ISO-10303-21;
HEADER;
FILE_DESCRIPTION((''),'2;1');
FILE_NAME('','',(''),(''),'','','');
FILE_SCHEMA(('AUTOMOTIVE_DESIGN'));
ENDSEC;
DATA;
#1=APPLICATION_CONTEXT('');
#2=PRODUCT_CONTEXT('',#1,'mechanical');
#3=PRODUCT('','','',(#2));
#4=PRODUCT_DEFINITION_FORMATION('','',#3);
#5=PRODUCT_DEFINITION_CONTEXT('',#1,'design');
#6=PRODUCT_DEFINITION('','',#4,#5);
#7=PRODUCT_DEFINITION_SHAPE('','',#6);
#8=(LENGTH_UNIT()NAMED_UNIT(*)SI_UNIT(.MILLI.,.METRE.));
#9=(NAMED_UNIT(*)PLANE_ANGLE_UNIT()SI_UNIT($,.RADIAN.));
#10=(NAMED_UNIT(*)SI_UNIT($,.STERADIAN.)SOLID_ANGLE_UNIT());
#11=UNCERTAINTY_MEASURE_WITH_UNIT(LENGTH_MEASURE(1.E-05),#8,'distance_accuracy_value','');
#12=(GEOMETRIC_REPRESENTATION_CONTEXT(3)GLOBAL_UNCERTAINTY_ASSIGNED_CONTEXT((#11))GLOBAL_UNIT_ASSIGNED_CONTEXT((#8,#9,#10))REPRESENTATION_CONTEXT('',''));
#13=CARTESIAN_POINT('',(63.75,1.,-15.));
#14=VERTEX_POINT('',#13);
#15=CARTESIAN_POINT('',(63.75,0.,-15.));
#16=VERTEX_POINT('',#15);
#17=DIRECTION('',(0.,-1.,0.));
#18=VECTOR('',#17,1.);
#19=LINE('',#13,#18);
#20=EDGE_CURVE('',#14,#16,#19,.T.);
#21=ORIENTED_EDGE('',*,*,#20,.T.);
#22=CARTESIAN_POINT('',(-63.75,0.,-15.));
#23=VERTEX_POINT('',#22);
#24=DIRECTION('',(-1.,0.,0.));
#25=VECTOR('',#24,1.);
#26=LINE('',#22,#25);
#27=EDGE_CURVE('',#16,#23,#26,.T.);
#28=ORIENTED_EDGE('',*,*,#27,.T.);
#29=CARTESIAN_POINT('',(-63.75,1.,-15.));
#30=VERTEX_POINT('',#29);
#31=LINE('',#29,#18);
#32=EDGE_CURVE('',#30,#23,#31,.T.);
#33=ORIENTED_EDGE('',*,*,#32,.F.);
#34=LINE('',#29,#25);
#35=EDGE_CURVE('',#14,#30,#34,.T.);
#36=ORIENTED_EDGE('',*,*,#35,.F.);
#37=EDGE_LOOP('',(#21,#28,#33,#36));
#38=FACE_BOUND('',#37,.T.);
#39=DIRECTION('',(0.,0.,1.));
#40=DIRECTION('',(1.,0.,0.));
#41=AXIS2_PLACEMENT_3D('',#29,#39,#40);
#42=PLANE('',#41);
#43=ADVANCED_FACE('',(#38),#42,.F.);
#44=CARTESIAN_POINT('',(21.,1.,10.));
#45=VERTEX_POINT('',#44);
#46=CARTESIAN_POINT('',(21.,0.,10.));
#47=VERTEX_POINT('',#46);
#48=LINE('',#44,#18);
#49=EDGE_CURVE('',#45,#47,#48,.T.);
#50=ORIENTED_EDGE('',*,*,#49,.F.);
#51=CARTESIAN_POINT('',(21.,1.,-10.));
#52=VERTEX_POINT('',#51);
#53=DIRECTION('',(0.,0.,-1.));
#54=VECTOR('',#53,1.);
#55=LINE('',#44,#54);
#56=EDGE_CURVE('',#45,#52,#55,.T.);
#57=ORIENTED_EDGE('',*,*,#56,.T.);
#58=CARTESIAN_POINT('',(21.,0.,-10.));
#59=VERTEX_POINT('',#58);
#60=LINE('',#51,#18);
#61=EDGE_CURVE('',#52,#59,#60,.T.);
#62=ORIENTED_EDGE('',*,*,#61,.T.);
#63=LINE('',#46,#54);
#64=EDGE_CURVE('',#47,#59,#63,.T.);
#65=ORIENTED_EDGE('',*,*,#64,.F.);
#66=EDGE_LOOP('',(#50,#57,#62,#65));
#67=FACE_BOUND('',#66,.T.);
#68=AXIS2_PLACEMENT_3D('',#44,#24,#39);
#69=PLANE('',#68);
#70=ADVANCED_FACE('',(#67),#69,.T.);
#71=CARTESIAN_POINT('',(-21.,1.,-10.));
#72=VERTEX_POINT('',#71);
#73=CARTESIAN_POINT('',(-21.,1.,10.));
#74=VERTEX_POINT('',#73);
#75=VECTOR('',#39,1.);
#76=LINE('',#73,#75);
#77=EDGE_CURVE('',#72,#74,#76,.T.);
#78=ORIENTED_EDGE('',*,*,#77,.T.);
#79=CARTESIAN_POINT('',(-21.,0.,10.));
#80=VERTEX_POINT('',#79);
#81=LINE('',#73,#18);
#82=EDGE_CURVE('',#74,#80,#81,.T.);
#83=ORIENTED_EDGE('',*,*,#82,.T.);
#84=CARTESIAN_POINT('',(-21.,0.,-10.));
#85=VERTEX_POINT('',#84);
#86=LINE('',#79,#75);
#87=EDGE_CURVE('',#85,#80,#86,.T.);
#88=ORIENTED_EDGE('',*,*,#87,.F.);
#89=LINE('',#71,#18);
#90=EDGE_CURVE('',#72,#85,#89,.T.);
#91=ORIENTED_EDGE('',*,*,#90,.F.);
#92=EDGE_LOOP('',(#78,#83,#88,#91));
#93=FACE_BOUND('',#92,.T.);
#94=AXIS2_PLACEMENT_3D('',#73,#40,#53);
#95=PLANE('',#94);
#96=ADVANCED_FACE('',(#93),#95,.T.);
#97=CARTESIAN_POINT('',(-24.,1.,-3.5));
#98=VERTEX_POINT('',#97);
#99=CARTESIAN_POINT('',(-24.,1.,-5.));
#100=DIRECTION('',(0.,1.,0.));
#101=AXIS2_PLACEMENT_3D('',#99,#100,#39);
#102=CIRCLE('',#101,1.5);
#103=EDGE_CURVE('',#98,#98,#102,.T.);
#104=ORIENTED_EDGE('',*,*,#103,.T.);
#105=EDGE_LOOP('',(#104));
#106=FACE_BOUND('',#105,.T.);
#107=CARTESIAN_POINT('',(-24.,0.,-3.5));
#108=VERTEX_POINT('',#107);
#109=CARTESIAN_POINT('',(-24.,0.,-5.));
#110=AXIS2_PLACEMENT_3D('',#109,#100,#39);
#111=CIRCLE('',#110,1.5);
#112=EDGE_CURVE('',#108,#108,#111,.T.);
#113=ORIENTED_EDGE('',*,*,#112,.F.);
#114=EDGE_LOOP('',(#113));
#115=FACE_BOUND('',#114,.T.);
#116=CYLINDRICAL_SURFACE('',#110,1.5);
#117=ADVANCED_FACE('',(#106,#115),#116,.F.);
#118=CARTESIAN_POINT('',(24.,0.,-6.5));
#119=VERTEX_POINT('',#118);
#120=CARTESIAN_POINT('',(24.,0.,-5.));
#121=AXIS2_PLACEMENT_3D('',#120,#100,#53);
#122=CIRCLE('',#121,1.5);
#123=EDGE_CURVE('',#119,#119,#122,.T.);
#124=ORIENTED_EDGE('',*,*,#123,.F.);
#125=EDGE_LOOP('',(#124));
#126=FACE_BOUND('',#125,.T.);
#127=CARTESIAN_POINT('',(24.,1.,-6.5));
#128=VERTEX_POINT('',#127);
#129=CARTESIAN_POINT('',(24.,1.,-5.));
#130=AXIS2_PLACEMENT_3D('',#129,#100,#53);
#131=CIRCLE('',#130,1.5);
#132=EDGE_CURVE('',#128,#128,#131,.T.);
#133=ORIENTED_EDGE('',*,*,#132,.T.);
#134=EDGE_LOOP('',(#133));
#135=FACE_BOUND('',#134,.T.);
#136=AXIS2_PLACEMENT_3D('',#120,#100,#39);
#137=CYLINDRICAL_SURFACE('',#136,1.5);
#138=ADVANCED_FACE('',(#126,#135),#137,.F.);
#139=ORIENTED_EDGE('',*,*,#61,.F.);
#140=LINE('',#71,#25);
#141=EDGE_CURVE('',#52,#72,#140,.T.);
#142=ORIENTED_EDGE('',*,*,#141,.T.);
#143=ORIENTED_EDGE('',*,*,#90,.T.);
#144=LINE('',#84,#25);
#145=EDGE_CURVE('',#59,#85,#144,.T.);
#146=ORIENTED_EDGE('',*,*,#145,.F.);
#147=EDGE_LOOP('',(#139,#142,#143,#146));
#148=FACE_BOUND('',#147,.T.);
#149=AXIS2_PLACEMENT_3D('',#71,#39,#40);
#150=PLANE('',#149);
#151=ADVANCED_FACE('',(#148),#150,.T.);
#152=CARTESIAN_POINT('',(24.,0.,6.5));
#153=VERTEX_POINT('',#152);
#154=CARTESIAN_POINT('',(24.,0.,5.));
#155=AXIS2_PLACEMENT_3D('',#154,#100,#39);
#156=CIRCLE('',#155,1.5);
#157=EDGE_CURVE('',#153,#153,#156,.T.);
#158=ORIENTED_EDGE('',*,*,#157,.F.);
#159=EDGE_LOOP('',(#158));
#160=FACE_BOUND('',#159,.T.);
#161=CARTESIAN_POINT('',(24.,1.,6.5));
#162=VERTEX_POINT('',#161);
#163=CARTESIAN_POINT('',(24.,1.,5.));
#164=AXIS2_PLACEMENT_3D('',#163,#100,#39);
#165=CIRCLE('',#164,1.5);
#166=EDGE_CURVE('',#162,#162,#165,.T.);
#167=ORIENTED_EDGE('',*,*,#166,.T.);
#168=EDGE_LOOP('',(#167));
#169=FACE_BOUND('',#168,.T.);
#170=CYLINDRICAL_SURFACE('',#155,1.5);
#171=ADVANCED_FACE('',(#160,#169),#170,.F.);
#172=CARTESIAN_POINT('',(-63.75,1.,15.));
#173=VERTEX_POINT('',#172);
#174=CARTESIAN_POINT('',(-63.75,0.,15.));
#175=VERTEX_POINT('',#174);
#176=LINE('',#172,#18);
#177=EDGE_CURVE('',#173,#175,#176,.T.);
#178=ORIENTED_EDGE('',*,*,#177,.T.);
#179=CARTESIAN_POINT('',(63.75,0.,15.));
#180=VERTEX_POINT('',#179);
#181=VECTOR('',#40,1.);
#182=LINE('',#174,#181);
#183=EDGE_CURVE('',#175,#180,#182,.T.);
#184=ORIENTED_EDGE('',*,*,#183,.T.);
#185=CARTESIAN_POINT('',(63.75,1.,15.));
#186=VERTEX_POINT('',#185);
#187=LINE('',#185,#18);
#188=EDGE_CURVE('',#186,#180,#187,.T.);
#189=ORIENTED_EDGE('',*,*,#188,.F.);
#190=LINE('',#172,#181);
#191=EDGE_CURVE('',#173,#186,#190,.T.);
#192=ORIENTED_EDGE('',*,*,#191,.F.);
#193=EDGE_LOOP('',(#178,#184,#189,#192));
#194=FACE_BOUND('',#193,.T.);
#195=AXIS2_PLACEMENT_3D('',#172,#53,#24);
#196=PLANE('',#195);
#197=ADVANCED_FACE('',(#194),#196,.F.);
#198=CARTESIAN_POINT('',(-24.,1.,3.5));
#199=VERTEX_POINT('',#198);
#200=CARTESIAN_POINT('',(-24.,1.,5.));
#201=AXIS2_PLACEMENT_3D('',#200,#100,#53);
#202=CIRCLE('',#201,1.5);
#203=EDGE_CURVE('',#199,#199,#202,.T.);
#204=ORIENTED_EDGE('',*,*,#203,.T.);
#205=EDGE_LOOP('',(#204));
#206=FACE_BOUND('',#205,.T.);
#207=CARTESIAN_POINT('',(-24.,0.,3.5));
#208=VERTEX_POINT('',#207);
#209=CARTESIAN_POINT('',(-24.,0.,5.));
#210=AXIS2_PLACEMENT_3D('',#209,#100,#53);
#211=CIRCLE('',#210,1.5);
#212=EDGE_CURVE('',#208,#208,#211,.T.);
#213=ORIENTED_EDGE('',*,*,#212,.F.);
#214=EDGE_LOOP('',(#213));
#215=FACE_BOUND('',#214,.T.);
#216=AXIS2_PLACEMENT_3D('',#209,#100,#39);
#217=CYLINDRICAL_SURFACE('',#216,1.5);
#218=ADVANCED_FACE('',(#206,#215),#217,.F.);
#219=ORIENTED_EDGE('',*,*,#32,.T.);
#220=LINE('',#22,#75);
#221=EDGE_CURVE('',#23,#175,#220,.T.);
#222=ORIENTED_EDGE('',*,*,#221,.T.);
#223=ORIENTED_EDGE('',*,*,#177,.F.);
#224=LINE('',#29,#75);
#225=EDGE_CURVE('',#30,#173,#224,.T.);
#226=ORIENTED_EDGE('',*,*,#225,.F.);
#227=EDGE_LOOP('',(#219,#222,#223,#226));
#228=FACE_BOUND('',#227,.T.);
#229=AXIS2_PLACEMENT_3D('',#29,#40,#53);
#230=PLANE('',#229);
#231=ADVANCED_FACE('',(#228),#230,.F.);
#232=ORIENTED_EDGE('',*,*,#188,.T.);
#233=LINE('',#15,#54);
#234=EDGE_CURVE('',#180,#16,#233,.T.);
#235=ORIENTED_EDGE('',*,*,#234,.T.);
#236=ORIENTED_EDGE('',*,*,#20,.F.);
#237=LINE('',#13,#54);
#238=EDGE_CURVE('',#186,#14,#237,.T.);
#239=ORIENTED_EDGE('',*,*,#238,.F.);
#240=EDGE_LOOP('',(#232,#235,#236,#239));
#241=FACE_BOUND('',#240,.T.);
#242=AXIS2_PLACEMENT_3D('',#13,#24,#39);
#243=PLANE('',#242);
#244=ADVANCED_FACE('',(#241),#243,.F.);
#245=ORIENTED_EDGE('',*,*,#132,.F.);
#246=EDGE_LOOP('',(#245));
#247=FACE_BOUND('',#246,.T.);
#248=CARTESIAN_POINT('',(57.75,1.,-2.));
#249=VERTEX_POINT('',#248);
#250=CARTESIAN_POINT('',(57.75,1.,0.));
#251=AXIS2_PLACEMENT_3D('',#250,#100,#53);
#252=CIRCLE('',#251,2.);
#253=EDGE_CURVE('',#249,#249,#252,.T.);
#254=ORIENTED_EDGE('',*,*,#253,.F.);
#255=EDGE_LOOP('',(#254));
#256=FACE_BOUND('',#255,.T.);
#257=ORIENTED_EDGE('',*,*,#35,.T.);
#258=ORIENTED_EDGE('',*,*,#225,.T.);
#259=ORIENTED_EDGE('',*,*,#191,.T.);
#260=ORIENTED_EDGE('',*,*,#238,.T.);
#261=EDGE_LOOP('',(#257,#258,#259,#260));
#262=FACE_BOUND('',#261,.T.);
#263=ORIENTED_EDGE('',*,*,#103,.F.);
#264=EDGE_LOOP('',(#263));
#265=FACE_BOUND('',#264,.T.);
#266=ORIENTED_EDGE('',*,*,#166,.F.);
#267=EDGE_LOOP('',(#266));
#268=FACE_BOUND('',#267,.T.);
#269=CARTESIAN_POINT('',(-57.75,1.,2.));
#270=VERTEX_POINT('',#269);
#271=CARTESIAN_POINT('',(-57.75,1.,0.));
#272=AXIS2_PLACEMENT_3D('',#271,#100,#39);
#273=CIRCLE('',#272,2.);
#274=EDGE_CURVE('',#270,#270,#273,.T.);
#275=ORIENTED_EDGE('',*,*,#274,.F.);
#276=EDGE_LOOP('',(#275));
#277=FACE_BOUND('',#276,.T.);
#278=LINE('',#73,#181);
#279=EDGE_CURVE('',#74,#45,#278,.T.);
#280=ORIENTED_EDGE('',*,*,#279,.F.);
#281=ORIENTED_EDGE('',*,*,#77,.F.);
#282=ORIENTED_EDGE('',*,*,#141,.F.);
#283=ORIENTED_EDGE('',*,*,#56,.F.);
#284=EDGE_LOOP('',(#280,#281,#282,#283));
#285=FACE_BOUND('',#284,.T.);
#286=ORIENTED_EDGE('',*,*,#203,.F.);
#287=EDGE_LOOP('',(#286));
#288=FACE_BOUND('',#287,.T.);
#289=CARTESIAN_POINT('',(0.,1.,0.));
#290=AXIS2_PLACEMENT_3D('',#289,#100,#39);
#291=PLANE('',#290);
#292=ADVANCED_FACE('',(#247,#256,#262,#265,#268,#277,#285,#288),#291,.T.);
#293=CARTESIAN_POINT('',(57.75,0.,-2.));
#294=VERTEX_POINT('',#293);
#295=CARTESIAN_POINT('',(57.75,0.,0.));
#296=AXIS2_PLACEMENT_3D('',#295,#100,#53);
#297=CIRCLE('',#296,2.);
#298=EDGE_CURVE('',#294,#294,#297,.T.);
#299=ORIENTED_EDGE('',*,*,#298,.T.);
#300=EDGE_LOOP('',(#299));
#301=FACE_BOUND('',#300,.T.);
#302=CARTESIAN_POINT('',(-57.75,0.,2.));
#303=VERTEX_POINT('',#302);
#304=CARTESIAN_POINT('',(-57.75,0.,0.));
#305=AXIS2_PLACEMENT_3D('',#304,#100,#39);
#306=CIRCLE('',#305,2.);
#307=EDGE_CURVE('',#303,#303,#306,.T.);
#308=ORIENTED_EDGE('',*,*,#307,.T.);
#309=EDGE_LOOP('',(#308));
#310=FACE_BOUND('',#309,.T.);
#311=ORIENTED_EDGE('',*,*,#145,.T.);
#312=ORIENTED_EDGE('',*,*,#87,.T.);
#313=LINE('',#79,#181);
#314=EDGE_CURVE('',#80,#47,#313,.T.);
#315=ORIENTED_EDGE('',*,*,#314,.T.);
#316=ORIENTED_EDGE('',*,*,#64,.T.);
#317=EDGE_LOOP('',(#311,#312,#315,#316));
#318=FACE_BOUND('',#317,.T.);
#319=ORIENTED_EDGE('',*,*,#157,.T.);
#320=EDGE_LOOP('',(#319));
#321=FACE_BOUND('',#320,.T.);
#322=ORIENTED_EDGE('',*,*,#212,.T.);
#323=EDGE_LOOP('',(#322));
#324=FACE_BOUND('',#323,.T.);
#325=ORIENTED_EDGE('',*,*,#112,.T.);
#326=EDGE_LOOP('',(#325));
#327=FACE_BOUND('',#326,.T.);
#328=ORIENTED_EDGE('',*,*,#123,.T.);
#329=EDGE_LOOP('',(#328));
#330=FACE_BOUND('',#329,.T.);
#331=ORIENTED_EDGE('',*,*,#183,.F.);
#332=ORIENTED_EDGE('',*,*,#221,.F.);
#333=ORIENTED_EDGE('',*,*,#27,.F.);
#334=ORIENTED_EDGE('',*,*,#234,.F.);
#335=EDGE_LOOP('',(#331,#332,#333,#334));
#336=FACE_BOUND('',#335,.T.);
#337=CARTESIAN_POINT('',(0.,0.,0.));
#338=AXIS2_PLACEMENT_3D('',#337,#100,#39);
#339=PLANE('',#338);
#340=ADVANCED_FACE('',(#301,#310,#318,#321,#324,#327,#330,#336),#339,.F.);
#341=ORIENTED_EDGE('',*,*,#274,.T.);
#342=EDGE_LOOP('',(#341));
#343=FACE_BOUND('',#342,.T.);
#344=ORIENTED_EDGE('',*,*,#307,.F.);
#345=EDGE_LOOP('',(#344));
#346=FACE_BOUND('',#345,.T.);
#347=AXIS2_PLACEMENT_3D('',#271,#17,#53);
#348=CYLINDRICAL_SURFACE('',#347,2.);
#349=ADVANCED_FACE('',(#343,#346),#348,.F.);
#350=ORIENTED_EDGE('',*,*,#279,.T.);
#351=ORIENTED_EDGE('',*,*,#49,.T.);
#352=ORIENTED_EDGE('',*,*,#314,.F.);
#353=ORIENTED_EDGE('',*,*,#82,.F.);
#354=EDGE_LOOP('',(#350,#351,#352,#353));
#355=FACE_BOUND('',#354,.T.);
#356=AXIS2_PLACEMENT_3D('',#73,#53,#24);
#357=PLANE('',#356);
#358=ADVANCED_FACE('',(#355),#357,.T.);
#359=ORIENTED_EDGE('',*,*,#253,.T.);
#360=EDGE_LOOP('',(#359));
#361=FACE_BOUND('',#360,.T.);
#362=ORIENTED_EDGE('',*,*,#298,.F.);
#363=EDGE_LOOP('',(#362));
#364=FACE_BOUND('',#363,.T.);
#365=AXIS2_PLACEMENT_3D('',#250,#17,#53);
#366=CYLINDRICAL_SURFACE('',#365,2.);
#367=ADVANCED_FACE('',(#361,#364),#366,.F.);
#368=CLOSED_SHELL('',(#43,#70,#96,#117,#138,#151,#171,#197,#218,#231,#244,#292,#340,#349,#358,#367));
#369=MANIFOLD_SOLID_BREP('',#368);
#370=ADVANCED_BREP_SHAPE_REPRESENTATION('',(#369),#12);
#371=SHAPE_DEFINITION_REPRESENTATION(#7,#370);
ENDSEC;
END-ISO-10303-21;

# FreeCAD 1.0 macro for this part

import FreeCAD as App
import Part
import Sketcher

V = App.Vector


def add_polygon(sketch, points):
    """Adds a closed chain of lines whose ends are joined by coincident constraints."""
    first, n = sketch.GeometryCount, len(points)
    for a, b in zip(points, points[1:] + points[:1]):
        sketch.addGeometry(Part.LineSegment(App.Vector(*a, 0), App.Vector(*b, 0)), False)
    for i in range(n):
        sketch.addConstraint(Sketcher.Constraint("Coincident", first + i, 2, first + (i + 1) % n, 1))

doc = App.newDocument("Part")
body = doc.addObject("PartDesign::Body", "Body")

# Sketch on XZ plane
sketch1 = body.newObject("Sketcher::SketchObject", "Sketch")
sketch1.AttachmentSupport = (doc.getObject("XZ_Plane"), [""])
sketch1.MapMode = "FlatFace"
add_polygon(sketch1, [(-63.75, -15), (-63.75, 15), (63.75, 15), (63.75, -15)])  # lines 0-3
sketch1.addGeometry(Part.Circle(V(-57.75, 0, 0), V(0, 0, 1), 2), False)  # 4
add_polygon(sketch1, [(21, 10), (-21, 10), (-21, -10), (21, -10)])  # lines 5-8
sketch1.addGeometry(Part.Circle(V(57.75, 0, 0), V(0, 0, 1), 2), False)  # 9
sketch1.addConstraint(Sketcher.Constraint("Vertical", 0))
sketch1.addConstraint(Sketcher.Constraint("Horizontal", 1))
sketch1.addConstraint(Sketcher.Constraint("Vertical", 2))
sketch1.addConstraint(Sketcher.Constraint("Horizontal", 3))
sketch1.addConstraint(Sketcher.Constraint("Horizontal", 5))
sketch1.addConstraint(Sketcher.Constraint("Vertical", 6))
sketch1.addConstraint(Sketcher.Constraint("Horizontal", 7))
sketch1.addConstraint(Sketcher.Constraint("Vertical", 8))
sketch1.addConstraint(Sketcher.Constraint("Equal", 4, 9))
sketch1.addConstraint(Sketcher.Constraint("Symmetric", 4, 3, 9, 3, -1, 1))
sketch1.addConstraint(Sketcher.Constraint("Symmetric", 0, 2, 2, 2, -1, 1))
sketch1.addConstraint(Sketcher.Constraint("Symmetric", 5, 2, 7, 2, -1, 1))
sketch1.addConstraint(Sketcher.Constraint("PointOnObject", 4, 3, -1))
sketch1.addConstraint(Sketcher.Constraint("Diameter", 4, 4.0))
sketch1.addConstraint(Sketcher.Constraint("DistanceX", 5, 2, 5, 1, 42.0))
sketch1.addConstraint(Sketcher.Constraint("DistanceY", 0, 1, 0, 2, 30.0))
sketch1.addConstraint(Sketcher.Constraint("DistanceY", 6, 2, 6, 1, 20.0))
sketch1.addConstraint(Sketcher.Constraint("DistanceX", 1, 1, 1, 2, 127.5))
sketch1.addConstraint(Sketcher.Constraint("DistanceX", 0, 2, 4, 3, 6.0))
pad1 = body.newObject("PartDesign::Pad", "Pad")
pad1.Profile = sketch1
pad1.Length = 1
pad1.Reversed = True

# Sketch on XZ plane
sketch2 = body.newObject("Sketcher::SketchObject", "Sketch001")
sketch2.AttachmentSupport = (doc.getObject("XZ_Plane"), [""])
sketch2.MapMode = "FlatFace"
sketch2.AttachmentOffset = App.Placement(V(0, 0, -1), App.Rotation())
sketch2.addGeometry(Part.Circle(V(-24, -5, 0), V(0, 0, 1), 1.5), False)
sketch2.addGeometry(Part.Circle(V(-24, 5, 0), V(0, 0, 1), 1.5), False)
sketch2.addGeometry(Part.Circle(V(24, 5, 0), V(0, 0, 1), 1.5), False)
sketch2.addGeometry(Part.Circle(V(24, -5, 0), V(0, 0, 1), 1.5), False)
sketch2.addConstraint(Sketcher.Constraint("Equal", 0, 1))
sketch2.addConstraint(Sketcher.Constraint("Equal", 1, 2))
sketch2.addConstraint(Sketcher.Constraint("Equal", 2, 3))
sketch2.addConstraint(Sketcher.Constraint("Symmetric", 0, 3, 2, 3, -1, 1))
sketch2.addConstraint(Sketcher.Constraint("Symmetric", 1, 3, 3, 3, -1, 1))
sketch2.addConstraint(Sketcher.Constraint("Symmetric", 1, 3, 2, 3, -2))
sketch2.addConstraint(Sketcher.Constraint("Diameter", 0, 3.0))
sketch2.addConstraint(Sketcher.Constraint("DistanceX", 0, 3, -1, 1, 24.0))
sketch2.addConstraint(Sketcher.Constraint("DistanceY", 0, 3, -1, 1, 5.0))
pocket1 = body.newObject("PartDesign::Pocket", "Pocket")
pocket1.Profile = sketch2
pocket1.Type = "ThroughAll"
pocket1.Reversed = True

doc.recompute()
